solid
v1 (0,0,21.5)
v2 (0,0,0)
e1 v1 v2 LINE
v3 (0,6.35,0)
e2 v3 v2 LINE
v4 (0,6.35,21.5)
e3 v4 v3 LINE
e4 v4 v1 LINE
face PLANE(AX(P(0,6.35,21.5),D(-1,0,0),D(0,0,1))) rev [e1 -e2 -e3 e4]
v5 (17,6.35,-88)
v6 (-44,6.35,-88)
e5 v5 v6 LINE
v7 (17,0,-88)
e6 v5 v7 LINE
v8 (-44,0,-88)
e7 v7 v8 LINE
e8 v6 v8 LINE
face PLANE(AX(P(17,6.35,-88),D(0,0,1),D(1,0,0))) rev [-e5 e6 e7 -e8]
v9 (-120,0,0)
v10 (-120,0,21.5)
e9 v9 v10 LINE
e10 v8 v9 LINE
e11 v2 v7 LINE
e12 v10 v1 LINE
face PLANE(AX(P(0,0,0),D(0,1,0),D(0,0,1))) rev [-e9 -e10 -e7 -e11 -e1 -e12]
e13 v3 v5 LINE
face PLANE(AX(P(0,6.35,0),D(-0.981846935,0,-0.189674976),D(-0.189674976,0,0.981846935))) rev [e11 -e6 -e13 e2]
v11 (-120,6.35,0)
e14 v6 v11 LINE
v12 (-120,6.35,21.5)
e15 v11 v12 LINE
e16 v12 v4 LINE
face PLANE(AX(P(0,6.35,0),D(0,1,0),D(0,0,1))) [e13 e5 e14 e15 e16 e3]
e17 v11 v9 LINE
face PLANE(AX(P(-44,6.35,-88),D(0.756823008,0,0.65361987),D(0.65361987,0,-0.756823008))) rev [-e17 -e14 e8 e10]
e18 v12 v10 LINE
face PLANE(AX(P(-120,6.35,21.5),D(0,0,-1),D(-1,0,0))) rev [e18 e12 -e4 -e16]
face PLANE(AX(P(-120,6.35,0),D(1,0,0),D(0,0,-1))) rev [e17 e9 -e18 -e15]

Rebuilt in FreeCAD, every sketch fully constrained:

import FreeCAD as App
import Part
import Sketcher
Q = App.Units.Quantity

doc = App.newDocument("Part")
body = doc.addObject("PartDesign::Body", "Body")

sketch1 = body.newObject("Sketcher::SketchObject", "Sketch")
sketch1.AttachmentSupport = (doc.getObject("XZ_Plane"), [""])
sketch1.MapMode = "FlatFace"
sketch1.addGeometry([
    Part.LineSegment(App.Vector(-120, 0, 0), App.Vector(0, 0, 0)),
    Part.LineSegment(App.Vector(0, 0, 0), App.Vector(17, -88, 0)),
    Part.LineSegment(App.Vector(17, -88, 0), App.Vector(-44, -88, 0)),
    Part.LineSegment(App.Vector(-44, -88, 0), App.Vector(-120, 0, 0)),
], False)
sketch1.addConstraint([
    Sketcher.Constraint("Coincident", 0, 2, 1, 1),
    Sketcher.Constraint("Coincident", 1, 2, 2, 1),
    Sketcher.Constraint("Coincident", 2, 2, 3, 1),
    Sketcher.Constraint("Coincident", 3, 2, 0, 1),
    Sketcher.Constraint("Horizontal", 0),
    Sketcher.Constraint("Horizontal", 2),
    Sketcher.Constraint("Coincident", 0, 2, -1, 1),
    Sketcher.Constraint("DistanceX", 0, 1, 0, 2, Q("120 mm")),
    Sketcher.Constraint("DistanceX", 2, 2, 2, 1, Q("61 mm")),
    Sketcher.Constraint("DistanceX", -1, 1, 1, 2, Q("17 mm")),
    Sketcher.Constraint("DistanceY", 1, 2, -1, 1, Q("88 mm")),
])
pad1 = body.newObject("PartDesign::Pad", "Pad")
pad1.Profile = sketch1
pad1.Length = 6.35
pad1.Reversed = True

sketch2 = body.newObject("Sketcher::SketchObject", "Sketch001")
sketch2.AttachmentSupport = (doc.getObject("XZ_Plane"), [""])
sketch2.MapMode = "FlatFace"
sketch2.addGeometry([
    Part.LineSegment(App.Vector(-120, 0, 0), App.Vector(-120, 22, 0)),
    Part.LineSegment(App.Vector(-120, 22, 0), App.Vector(0, 22, 0)),
    Part.LineSegment(App.Vector(0, 22, 0), App.Vector(0, 0, 0)),
    Part.LineSegment(App.Vector(0, 0, 0), App.Vector(-120, 0, 0)),
], False)
sketch2.addConstraint([
    Sketcher.Constraint("Coincident", 0, 2, 1, 1),
    Sketcher.Constraint("Coincident", 1, 2, 2, 1),
    Sketcher.Constraint("Coincident", 2, 2, 3, 1),
    Sketcher.Constraint("Coincident", 3, 2, 0, 1),
    Sketcher.Constraint("Vertical", 0),
    Sketcher.Constraint("Horizontal", 1),
    Sketcher.Constraint("Vertical", 2),
    Sketcher.Constraint("Horizontal", 3),
    Sketcher.Constraint("Coincident", 2, 2, -1, 1),
    Sketcher.Constraint("DistanceX", 1, 1, 1, 2, Q("120 mm")),
    Sketcher.Constraint("DistanceY", 0, 1, 0, 2, Q("21.5 mm")),
])
pad2 = body.newObject("PartDesign::Pad", "Pad001")
pad2.Profile = sketch2
pad2.Length = 6.35
pad2.Reversed = True

doc.recompute()
